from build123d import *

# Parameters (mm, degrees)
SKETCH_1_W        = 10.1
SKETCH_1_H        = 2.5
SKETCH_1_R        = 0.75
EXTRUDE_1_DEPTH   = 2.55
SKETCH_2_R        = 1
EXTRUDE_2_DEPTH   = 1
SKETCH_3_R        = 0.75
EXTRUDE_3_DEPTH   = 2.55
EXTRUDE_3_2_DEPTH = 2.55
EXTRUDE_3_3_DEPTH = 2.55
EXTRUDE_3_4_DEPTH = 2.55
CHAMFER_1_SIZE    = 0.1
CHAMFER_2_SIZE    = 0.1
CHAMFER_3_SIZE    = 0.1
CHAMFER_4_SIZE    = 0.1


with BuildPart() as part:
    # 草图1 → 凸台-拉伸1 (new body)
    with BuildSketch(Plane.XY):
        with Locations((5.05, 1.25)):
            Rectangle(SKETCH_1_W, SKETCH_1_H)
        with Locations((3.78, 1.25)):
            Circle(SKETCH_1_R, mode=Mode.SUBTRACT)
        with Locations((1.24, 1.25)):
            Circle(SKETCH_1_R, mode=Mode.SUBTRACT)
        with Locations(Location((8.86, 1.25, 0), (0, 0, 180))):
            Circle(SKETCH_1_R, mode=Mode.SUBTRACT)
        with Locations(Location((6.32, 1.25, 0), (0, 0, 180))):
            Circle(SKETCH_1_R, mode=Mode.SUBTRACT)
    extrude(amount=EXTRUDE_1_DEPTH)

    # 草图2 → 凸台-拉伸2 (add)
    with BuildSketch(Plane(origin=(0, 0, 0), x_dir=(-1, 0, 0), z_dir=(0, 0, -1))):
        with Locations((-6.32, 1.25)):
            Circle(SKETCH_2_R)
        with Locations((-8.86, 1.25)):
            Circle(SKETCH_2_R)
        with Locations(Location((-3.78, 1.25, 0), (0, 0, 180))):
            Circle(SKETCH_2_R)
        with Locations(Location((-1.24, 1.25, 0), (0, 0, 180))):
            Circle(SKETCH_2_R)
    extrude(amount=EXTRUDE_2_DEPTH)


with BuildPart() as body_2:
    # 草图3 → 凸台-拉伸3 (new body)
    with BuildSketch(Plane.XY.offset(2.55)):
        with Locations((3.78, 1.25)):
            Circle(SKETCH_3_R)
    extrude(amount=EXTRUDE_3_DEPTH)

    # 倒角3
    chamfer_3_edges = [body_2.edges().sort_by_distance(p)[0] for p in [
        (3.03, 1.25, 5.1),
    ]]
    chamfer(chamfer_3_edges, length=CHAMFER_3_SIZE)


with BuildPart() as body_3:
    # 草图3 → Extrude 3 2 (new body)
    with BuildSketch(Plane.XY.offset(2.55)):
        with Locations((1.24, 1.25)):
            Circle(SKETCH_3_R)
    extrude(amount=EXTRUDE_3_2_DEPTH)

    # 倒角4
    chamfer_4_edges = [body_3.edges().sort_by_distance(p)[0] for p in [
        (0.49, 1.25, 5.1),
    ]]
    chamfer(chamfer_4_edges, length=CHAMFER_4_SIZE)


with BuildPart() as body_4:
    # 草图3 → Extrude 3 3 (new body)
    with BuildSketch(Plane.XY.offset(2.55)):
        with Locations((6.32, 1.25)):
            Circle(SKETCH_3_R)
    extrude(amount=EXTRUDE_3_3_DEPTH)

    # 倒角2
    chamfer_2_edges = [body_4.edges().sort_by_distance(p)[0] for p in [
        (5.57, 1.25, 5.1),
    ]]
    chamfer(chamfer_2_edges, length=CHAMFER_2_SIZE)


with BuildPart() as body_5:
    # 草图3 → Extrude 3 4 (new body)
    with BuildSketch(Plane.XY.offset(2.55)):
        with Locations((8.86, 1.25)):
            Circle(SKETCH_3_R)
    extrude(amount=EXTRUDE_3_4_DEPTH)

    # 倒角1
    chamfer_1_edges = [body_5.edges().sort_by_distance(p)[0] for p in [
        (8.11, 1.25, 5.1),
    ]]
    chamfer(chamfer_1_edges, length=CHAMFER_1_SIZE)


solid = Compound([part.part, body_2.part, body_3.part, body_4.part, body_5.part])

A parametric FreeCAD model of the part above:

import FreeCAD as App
import Part
import Sketcher

V = App.Vector


def edges_at(feature, points):
    """Names of the edges that pass closest to the given points."""
    edges = feature.Shape.Edges
    near = lambda p: min(range(len(edges)), key=lambda i: edges[i].distToShape(Part.Vertex(*p))[0])
    return sorted({f"Edge{near(p) + 1}" for p in points})


def add_polygon(sketch, points):
    """Adds a closed chain of lines whose ends are joined by coincident constraints."""
    first, n = sketch.GeometryCount, len(points)
    for a, b in zip(points, points[1:] + points[:1]):
        sketch.addGeometry(Part.LineSegment(App.Vector(*a, 0), App.Vector(*b, 0)), False)
    for i in range(n):
        sketch.addConstraint(Sketcher.Constraint("Coincident", first + i, 2, first + (i + 1) % n, 1))

doc = App.newDocument("Part")
body = doc.addObject("PartDesign::Body", "Body")

sketch1 = body.newObject("Sketcher::SketchObject", "Sketch")
sketch1.AttachmentSupport = (doc.getObject("XY_Plane"), [""])
sketch1.MapMode = "FlatFace"
add_polygon(sketch1, [(0, 2.5), (0, 0), (10.1, 0), (10.1, 2.5)])
sketch1.addGeometry(Part.Circle(V(1.24, 1.25, 0), V(0, 0, 1), 0.75), False)
sketch1.addGeometry(Part.Circle(V(3.78, 1.25, 0), V(0, 0, 1), 0.75), False)
sketch1.addGeometry(Part.Circle(V(6.32, 1.25, 0), V(0, 0, 1), 0.75), False)
sketch1.addGeometry(Part.Circle(V(8.86, 1.25, 0), V(0, 0, 1), 0.75), False)
sketch1.addConstraint(Sketcher.Constraint("Vertical", 0))
sketch1.addConstraint(Sketcher.Constraint("Horizontal", 1))
sketch1.addConstraint(Sketcher.Constraint("Vertical", 2))
sketch1.addConstraint(Sketcher.Constraint("Horizontal", 3))
sketch1.addConstraint(Sketcher.Constraint("Coincident", 0, 2, -1, 1))
sketch1.addConstraint(Sketcher.Constraint("Equal", 4, 5))
sketch1.addConstraint(Sketcher.Constraint("Equal", 5, 6))
sketch1.addConstraint(Sketcher.Constraint("Equal", 6, 7))
sketch1.addConstraint(Sketcher.Constraint("Horizontal", 4, 3, 5, 3))
sketch1.addConstraint(Sketcher.Constraint("Horizontal", 5, 3, 6, 3))
sketch1.addConstraint(Sketcher.Constraint("Horizontal", 6, 3, 7, 3))
sketch1.addConstraint(Sketcher.Constraint("Diameter", 4, 1.5))
sketch1.addConstraint(Sketcher.Constraint("DistanceX", 1, 1, 1, 2, 10.1))
sketch1.addConstraint(Sketcher.Constraint("DistanceY", 0, 2, 0, 1, 2.5))
sketch1.addConstraint(Sketcher.Constraint("DistanceX", -1, 1, 4, 3, 1.24))
sketch1.addConstraint(Sketcher.Constraint("DistanceY", -1, 1, 4, 3, 1.25))
sketch1.addConstraint(Sketcher.Constraint("DistanceX", -1, 1, 5, 3, 3.78))
sketch1.addConstraint(Sketcher.Constraint("DistanceX", -1, 1, 6, 3, 6.32))
sketch1.addConstraint(Sketcher.Constraint("DistanceX", -1, 1, 7, 3, 8.86))
pad1 = body.newObject("PartDesign::Pad", "Pad")
pad1.Profile = sketch1
pad1.Length = 2.55

sketch2 = body.newObject("Sketcher::SketchObject", "Sketch001")
sketch2.AttachmentSupport = (doc.getObject("XY_Plane"), [""])
sketch2.MapMode = "FlatFace"
sketch2.addGeometry(Part.Circle(V(6.32, 1.25, 0), V(0, 0, 1), 1), False)
sketch2.addGeometry(Part.Circle(V(8.86, 1.25, 0), V(0, 0, 1), 1), False)
sketch2.addGeometry(Part.Circle(V(3.78, 1.25, 0), V(0, 0, 1), 1), False)
sketch2.addGeometry(Part.Circle(V(1.24, 1.25, 0), V(0, 0, 1), 1), False)
sketch2.addConstraint(Sketcher.Constraint("Equal", 0, 1))
sketch2.addConstraint(Sketcher.Constraint("Equal", 1, 2))
sketch2.addConstraint(Sketcher.Constraint("Equal", 2, 3))
sketch2.addConstraint(Sketcher.Constraint("Horizontal", 0, 3, 1, 3))
sketch2.addConstraint(Sketcher.Constraint("Horizontal", 1, 3, 2, 3))
sketch2.addConstraint(Sketcher.Constraint("Horizontal", 2, 3, 3, 3))
sketch2.addConstraint(Sketcher.Constraint("Diameter", 0, 2.0))
sketch2.addConstraint(Sketcher.Constraint("DistanceX", -1, 1, 0, 3, 6.32))
sketch2.addConstraint(Sketcher.Constraint("DistanceY", -1, 1, 0, 3, 1.25))
sketch2.addConstraint(Sketcher.Constraint("DistanceX", -1, 1, 1, 3, 8.86))
sketch2.addConstraint(Sketcher.Constraint("DistanceX", -1, 1, 2, 3, 3.78))
sketch2.addConstraint(Sketcher.Constraint("DistanceX", -1, 1, 3, 3, 1.24))
pad2 = body.newObject("PartDesign::Pad", "Pad001")
pad2.Profile = sketch2
pad2.Length = 1
pad2.Reversed = True
body2 = doc.addObject("PartDesign::Body", "Body001")

sketch3 = body2.newObject("Sketcher::SketchObject", "Sketch002")
sketch3.AttachmentSupport = (doc.getObject("XY_Plane001"), [""])
sketch3.MapMode = "FlatFace"
sketch3.AttachmentOffset = App.Placement(V(0, 0, 2.55), App.Rotation())
sketch3.addGeometry(Part.Circle(V(3.78, 1.25, 0), V(0, 0, 1), 0.75), False)
sketch3.addConstraint(Sketcher.Constraint("Diameter", 0, 1.5))
sketch3.addConstraint(Sketcher.Constraint("DistanceX", -1, 1, 0, 3, 3.78))
sketch3.addConstraint(Sketcher.Constraint("DistanceY", -1, 1, 0, 3, 1.25))
pad3 = body2.newObject("PartDesign::Pad", "Pad002")
pad3.Profile = sketch3
pad3.Length = 2.55
doc.recompute()

chamfer = body2.newObject("PartDesign::Chamfer", "Chamfer")
chamfer.Base = (pad3, edges_at(pad3, [(3.03, 1.25, 5.1)]))
chamfer.Size = 0.1
body3 = doc.addObject("PartDesign::Body", "Body002")

sketch4 = body3.newObject("Sketcher::SketchObject", "Sketch003")
sketch4.AttachmentSupport = (doc.getObject("XY_Plane002"), [""])
sketch4.MapMode = "FlatFace"
sketch4.AttachmentOffset = App.Placement(V(0, 0, 2.55), App.Rotation())
sketch4.addGeometry(Part.Circle(V(1.24, 1.25, 0), V(0, 0, 1), 0.75), False)
sketch4.addConstraint(Sketcher.Constraint("Diameter", 0, 1.5))
sketch4.addConstraint(Sketcher.Constraint("DistanceX", -1, 1, 0, 3, 1.24))
sketch4.addConstraint(Sketcher.Constraint("DistanceY", -1, 1, 0, 3, 1.25))
pad4 = body3.newObject("PartDesign::Pad", "Pad003")
pad4.Profile = sketch4
pad4.Length = 2.55
doc.recompute()

chamfer2 = body3.newObject("PartDesign::Chamfer", "Chamfer001")
chamfer2.Base = (pad4, edges_at(pad4, [(0.49, 1.25, 5.1)]))
chamfer2.Size = 0.1
body4 = doc.addObject("PartDesign::Body", "Body003")

sketch5 = body4.newObject("Sketcher::SketchObject", "Sketch004")
sketch5.AttachmentSupport = (doc.getObject("XY_Plane003"), [""])
sketch5.MapMode = "FlatFace"
sketch5.AttachmentOffset = App.Placement(V(0, 0, 2.55), App.Rotation())
sketch5.addGeometry(Part.Circle(V(6.32, 1.25, 0), V(0, 0, 1), 0.75), False)
sketch5.addConstraint(Sketcher.Constraint("Diameter", 0, 1.5))
sketch5.addConstraint(Sketcher.Constraint("DistanceX", -1, 1, 0, 3, 6.32))
sketch5.addConstraint(Sketcher.Constraint("DistanceY", -1, 1, 0, 3, 1.25))
pad5 = body4.newObject("PartDesign::Pad", "Pad004")
pad5.Profile = sketch5
pad5.Length = 2.55
doc.recompute()

chamfer3 = body4.newObject("PartDesign::Chamfer", "Chamfer002")
chamfer3.Base = (pad5, edges_at(pad5, [(5.57, 1.25, 5.1)]))
chamfer3.Size = 0.1
body5 = doc.addObject("PartDesign::Body", "Body004")

sketch6 = body5.newObject("Sketcher::SketchObject", "Sketch005")
sketch6.AttachmentSupport = (doc.getObject("XY_Plane004"), [""])
sketch6.MapMode = "FlatFace"
sketch6.AttachmentOffset = App.Placement(V(0, 0, 2.55), App.Rotation())
sketch6.addGeometry(Part.Circle(V(8.86, 1.25, 0), V(0, 0, 1), 0.75), False)
sketch6.addConstraint(Sketcher.Constraint("Diameter", 0, 1.5))
sketch6.addConstraint(Sketcher.Constraint("DistanceX", -1, 1, 0, 3, 8.86))
sketch6.addConstraint(Sketcher.Constraint("DistanceY", -1, 1, 0, 3, 1.25))
pad6 = body5.newObject("PartDesign::Pad", "Pad005")
pad6.Profile = sketch6
pad6.Length = 2.55
doc.recompute()

chamfer4 = body5.newObject("PartDesign::Chamfer", "Chamfer003")
chamfer4.Base = (pad6, edges_at(pad6, [(8.11, 1.25, 5.1)]))
chamfer4.Size = 0.1

doc.recompute()
